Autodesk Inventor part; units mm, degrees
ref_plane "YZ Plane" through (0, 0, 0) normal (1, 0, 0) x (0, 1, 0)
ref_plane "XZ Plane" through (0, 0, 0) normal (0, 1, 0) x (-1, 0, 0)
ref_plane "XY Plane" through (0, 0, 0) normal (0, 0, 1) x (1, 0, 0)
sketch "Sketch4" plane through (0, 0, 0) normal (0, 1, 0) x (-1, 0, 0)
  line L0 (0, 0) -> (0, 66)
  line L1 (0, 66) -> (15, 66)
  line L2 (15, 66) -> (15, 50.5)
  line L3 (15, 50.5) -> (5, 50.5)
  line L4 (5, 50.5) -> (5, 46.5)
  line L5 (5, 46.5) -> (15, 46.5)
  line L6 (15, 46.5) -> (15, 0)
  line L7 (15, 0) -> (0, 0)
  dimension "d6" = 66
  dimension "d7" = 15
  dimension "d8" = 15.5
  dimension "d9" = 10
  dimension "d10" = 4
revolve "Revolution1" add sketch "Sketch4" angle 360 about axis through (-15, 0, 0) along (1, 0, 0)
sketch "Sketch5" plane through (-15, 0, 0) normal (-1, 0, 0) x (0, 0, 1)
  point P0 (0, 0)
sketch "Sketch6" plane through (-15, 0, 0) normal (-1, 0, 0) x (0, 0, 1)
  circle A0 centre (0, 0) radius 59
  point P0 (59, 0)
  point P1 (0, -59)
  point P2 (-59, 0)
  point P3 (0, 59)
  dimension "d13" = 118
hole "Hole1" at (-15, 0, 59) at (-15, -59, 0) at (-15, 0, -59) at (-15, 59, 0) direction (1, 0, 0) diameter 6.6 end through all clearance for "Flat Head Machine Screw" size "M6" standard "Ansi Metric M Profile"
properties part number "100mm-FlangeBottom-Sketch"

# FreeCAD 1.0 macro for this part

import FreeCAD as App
import Part
import Sketcher

doc = App.newDocument("Part")
body = doc.addObject("PartDesign::Body", "Body")

# Sketch on XZ plane
sketch1 = body.newObject("Sketcher::SketchObject", "Sketch")
sketch1.AttachmentSupport = (doc.getObject("XZ_Plane"), [""])
sketch1.MapMode = "FlatFace"
sketch1.addGeometry(Part.LineSegment(App.Vector(0, 66, 0), App.Vector(0, 0, 0)), False)
sketch1.addGeometry(Part.LineSegment(App.Vector(0, 0, 0), App.Vector(-15, 0, 0)), False)
sketch1.addGeometry(Part.LineSegment(App.Vector(-15, 0, 0), App.Vector(-15, 46.5, 0)), False)
sketch1.addGeometry(Part.LineSegment(App.Vector(-15, 46.5, 0), App.Vector(-5, 46.5, 0)), False)
sketch1.addGeometry(Part.LineSegment(App.Vector(-5, 46.5, 0), App.Vector(-5, 50.5, 0)), False)
sketch1.addGeometry(Part.LineSegment(App.Vector(-5, 50.5, 0), App.Vector(-15, 50.5, 0)), False)
sketch1.addGeometry(Part.LineSegment(App.Vector(-15, 50.5, 0), App.Vector(-15, 66, 0)), False)
sketch1.addGeometry(Part.LineSegment(App.Vector(-15, 66, 0), App.Vector(0, 66, 0)), False)
sketch1.addConstraint(Sketcher.Constraint("Coincident", 0, 2, 1, 1))
sketch1.addConstraint(Sketcher.Constraint("Coincident", 1, 2, 2, 1))
sketch1.addConstraint(Sketcher.Constraint("Coincident", 2, 2, 3, 1))
sketch1.addConstraint(Sketcher.Constraint("Coincident", 3, 2, 4, 1))
sketch1.addConstraint(Sketcher.Constraint("Coincident", 4, 2, 5, 1))
sketch1.addConstraint(Sketcher.Constraint("Coincident", 5, 2, 6, 1))
sketch1.addConstraint(Sketcher.Constraint("Coincident", 6, 2, 7, 1))
sketch1.addConstraint(Sketcher.Constraint("Coincident", 7, 2, 0, 1))
sketch1.addConstraint(Sketcher.Constraint("Vertical", 0))
sketch1.addConstraint(Sketcher.Constraint("Horizontal", 1))
sketch1.addConstraint(Sketcher.Constraint("Vertical", 2))
sketch1.addConstraint(Sketcher.Constraint("Horizontal", 3))
sketch1.addConstraint(Sketcher.Constraint("Vertical", 4))
sketch1.addConstraint(Sketcher.Constraint("Horizontal", 5))
sketch1.addConstraint(Sketcher.Constraint("Vertical", 6))
sketch1.addConstraint(Sketcher.Constraint("Horizontal", 7))
sketch1.addConstraint(Sketcher.Constraint("Coincident", 0, 2, -1, 1))
sketch1.addConstraint(Sketcher.Constraint("Vertical", 2, 2, 5, 2))
sketch1.addConstraint(Sketcher.Constraint("DistanceX", 1, 2, 1, 1, 15.0))
sketch1.addConstraint(Sketcher.Constraint("DistanceX", 3, 1, 3, 2, 10.0))
sketch1.addConstraint(Sketcher.Constraint("DistanceY", 0, 2, 0, 1, 66.0))
sketch1.addConstraint(Sketcher.Constraint("DistanceY", 4, 1, 4, 2, 4.0))
sketch1.addConstraint(Sketcher.Constraint("DistanceY", 6, 1, 6, 2, 15.5))
revolution = body.newObject("PartDesign::Revolution", "Revolution")
revolution.Profile = sketch1
revolution.ReferenceAxis = (sketch1, ["H_Axis"])
revolution.Angle = 360

# Sketch on YZ plane
sketch2 = body.newObject("Sketcher::SketchObject", "Sketch001")
sketch2.AttachmentSupport = (doc.getObject("YZ_Plane"), [""])
sketch2.MapMode = "FlatFace"
sketch2.AttachmentOffset = App.Placement(App.Vector(0, 0, -15), App.Rotation())
sketch2.addGeometry(Part.Circle(App.Vector(0, 59, 0), App.Vector(0, 0, 1), 3.3), False)
sketch2.addGeometry(Part.Circle(App.Vector(-59, 0, 0), App.Vector(0, 0, 1), 3.3), False)
sketch2.addGeometry(Part.Circle(App.Vector(0, -59, 0), App.Vector(0, 0, 1), 3.3), False)
sketch2.addGeometry(Part.Circle(App.Vector(59, 0, 0), App.Vector(0, 0, 1), 3.3), False)
sketch2.addConstraint(Sketcher.Constraint("Equal", 0, 1))
sketch2.addConstraint(Sketcher.Constraint("Equal", 1, 2))
sketch2.addConstraint(Sketcher.Constraint("Equal", 2, 3))
sketch2.addConstraint(Sketcher.Constraint("Symmetric", 0, 3, 2, 3, -1, 1))
sketch2.addConstraint(Sketcher.Constraint("Symmetric", 1, 3, 3, 3, -1, 1))
sketch2.addConstraint(Sketcher.Constraint("PointOnObject", 0, 3, -2))
sketch2.addConstraint(Sketcher.Constraint("PointOnObject", 1, 3, -1))
sketch2.addConstraint(Sketcher.Constraint("Diameter", 0, 6.6))
sketch2.addConstraint(Sketcher.Constraint("DistanceY", -1, 1, 0, 3, 59.0))
sketch2.addConstraint(Sketcher.Constraint("DistanceX", 1, 3, -1, 1, 59.0))
doc.recompute()
hole = body.newObject("PartDesign::Hole", "Hole")
hole.Profile = sketch2
hole.ThreadType = "None"
hole.Diameter = 6.6
hole.DepthType = "ThroughAll"
hole.Reversed = True

doc.recompute()
